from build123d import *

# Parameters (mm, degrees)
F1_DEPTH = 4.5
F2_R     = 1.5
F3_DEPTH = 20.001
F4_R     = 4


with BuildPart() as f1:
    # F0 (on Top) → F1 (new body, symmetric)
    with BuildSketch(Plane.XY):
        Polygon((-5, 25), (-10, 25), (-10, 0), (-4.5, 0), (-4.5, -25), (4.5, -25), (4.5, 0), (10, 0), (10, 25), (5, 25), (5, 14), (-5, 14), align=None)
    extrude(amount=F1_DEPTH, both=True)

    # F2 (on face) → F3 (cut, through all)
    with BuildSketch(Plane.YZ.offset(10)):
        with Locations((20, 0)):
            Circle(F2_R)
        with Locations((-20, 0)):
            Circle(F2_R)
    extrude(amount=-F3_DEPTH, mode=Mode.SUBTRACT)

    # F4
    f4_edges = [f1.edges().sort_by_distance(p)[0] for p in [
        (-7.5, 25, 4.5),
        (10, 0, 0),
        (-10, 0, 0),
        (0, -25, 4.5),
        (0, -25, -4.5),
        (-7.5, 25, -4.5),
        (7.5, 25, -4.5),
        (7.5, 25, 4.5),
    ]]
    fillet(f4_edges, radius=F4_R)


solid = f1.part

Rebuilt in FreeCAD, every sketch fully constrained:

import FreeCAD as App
import Part
import Sketcher


def edges_at(feature, points):
    """Names of the edges that pass closest to the given points."""
    edges = feature.Shape.Edges
    near = lambda p: min(range(len(edges)), key=lambda i: edges[i].distToShape(Part.Vertex(*p))[0])
    return sorted({f"Edge{near(p) + 1}" for p in points})


def add_polygon(sketch, points):
    """Adds a closed chain of lines whose ends are joined by coincident constraints."""
    first, n = sketch.GeometryCount, len(points)
    for a, b in zip(points, points[1:] + points[:1]):
        sketch.addGeometry(Part.LineSegment(App.Vector(*a, 0), App.Vector(*b, 0)), False)
    for i in range(n):
        sketch.addConstraint(Sketcher.Constraint("Coincident", first + i, 2, first + (i + 1) % n, 1))

doc = App.newDocument("Part")
params = doc.addObject("Spreadsheet::Sheet", "Params")
for row, (alias, value) in enumerate([
    ("sketch1_width", "5 mm"),
    ("sketch1_width2", "9 mm"),
    ("sketch1_width3", "10 mm"),
    ("sketch1_height", "25 mm"),
    ("sketch1_height2", "11 mm"),
    ("pad1_length", "9 mm"),
    ("sketch2_diameter", "3 mm"),
    ("fillet_radius", "4 mm"),
], start=1):
    params.set(f"A{row}", alias)
    params.set(f"B{row}", "=" + value)
    params.setAlias(f"B{row}", alias)

body = doc.addObject("PartDesign::Body", "Body")

# Sketch on XY plane
sketch1 = body.newObject("Sketcher::SketchObject", "Sketch")
sketch1.AttachmentSupport = (doc.getObject("XY_Plane"), [""])
sketch1.MapMode = "FlatFace"
add_polygon(sketch1, [(-5, 25), (-10, 25), (-10, 0), (-4.5, 0), (-4.5, -25), (4.5, -25), (4.5, 0), (10, 0), (10, 25), (5, 25), (5, 14), (-5, 14)])  # lines 0-11
sketch1.addConstraint([
    Sketcher.Constraint("Horizontal", 0),
    Sketcher.Constraint("Vertical", 1),
    Sketcher.Constraint("Horizontal", 2),
    Sketcher.Constraint("Vertical", 3),
    Sketcher.Constraint("Horizontal", 4),
    Sketcher.Constraint("Vertical", 5),
    Sketcher.Constraint("Horizontal", 6),
    Sketcher.Constraint("Vertical", 7),
    Sketcher.Constraint("Horizontal", 8),
    Sketcher.Constraint("Vertical", 9),
    Sketcher.Constraint("Horizontal", 10),
    Sketcher.Constraint("Vertical", 11),
    Sketcher.Constraint("Symmetric", 2, 2, 5, 2, -1, 1),
    Sketcher.Constraint("Symmetric", 1, 2, 6, 2, -2),
    Sketcher.Constraint("Symmetric", 8, 2, 11, 2, -2),
    Sketcher.Constraint("Equal", 1, 3),
    Sketcher.Constraint("DistanceX", 0, 2, 0, 1, 5.0),
    Sketcher.Constraint("DistanceX", 4, 1, 4, 2, 9.0),
    Sketcher.Constraint("DistanceX", 10, 2, 10, 1, 10.0),
    Sketcher.Constraint("DistanceY", 1, 2, 1, 1, 25.0),
    Sketcher.Constraint("DistanceY", 9, 2, 9, 1, 11.0),
])
sketch1.setExpression("Constraints[28]", "Params.sketch1_width")
sketch1.setExpression("Constraints[29]", "Params.sketch1_width2")
sketch1.setExpression("Constraints[30]", "Params.sketch1_width3")
sketch1.setExpression("Constraints[31]", "Params.sketch1_height")
sketch1.setExpression("Constraints[32]", "Params.sketch1_height2")
pad1 = body.newObject("PartDesign::Pad", "Pad")
pad1.Profile = sketch1
pad1.setExpression("Length", "Params.pad1_length")
pad1.Midplane = True

# Sketch on YZ plane
sketch2 = body.newObject("Sketcher::SketchObject", "Sketch001")
sketch2.AttachmentSupport = (doc.getObject("YZ_Plane"), [""])
sketch2.MapMode = "FlatFace"
sketch2.AttachmentOffset = App.Placement(App.Vector(0, 0, 10), App.Rotation())
sketch2.addGeometry([
    Part.Circle(App.Vector(20, 0, 0), App.Vector(0, 0, 1), 1.5),
    Part.Circle(App.Vector(-20, 0, 0), App.Vector(0, 0, 1), 1.5),
], False)
sketch2.addConstraint([
    Sketcher.Constraint("Equal", 0, 1),
    Sketcher.Constraint("Symmetric", 0, 3, 1, 3, -1, 1),
    Sketcher.Constraint("PointOnObject", 0, 3, -1),
    Sketcher.Constraint("Diameter", 0, 3.0),
    Sketcher.Constraint("DistanceX", -1, 1, 0, 3, 20.0),
])
sketch2.setExpression("Constraints[3]", "Params.sketch2_diameter")
pocket1 = body.newObject("PartDesign::Pocket", "Pocket")
pocket1.Profile = sketch2
pocket1.Type = "ThroughAll"
doc.recompute()

fillet = body.newObject("PartDesign::Fillet", "Fillet")
fillet.Base = (pocket1, edges_at(pocket1, [
    (-7.5, 25, 4.5),
    (10, 0, 0),
    (-10, 0, 0),
    (0, -25, 4.5),
    (0, -25, -4.5),
    (-7.5, 25, -4.5),
    (7.5, 25, -4.5),
    (7.5, 25, 4.5),
]))
fillet.setExpression("Radius", "Params.fillet_radius")

doc.recompute()
